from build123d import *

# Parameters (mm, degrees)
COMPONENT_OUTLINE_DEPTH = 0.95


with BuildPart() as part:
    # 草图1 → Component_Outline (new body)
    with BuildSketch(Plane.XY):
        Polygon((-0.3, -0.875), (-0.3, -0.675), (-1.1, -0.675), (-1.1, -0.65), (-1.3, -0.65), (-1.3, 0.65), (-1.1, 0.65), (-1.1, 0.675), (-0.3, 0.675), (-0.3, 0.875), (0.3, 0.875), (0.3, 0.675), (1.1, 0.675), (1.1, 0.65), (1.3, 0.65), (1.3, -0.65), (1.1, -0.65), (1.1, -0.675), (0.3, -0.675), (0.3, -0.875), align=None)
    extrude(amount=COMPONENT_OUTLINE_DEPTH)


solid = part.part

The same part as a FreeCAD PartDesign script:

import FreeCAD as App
import Part
import Sketcher

doc = App.newDocument("Part")
body = doc.addObject("PartDesign::Body", "Body")

sketch1 = body.newObject("Sketcher::SketchObject", "Sketch")
sketch1.AttachmentSupport = (doc.getObject("XY_Plane"), [""])
sketch1.MapMode = "FlatFace"
sketch1.addGeometry(Part.LineSegment(App.Vector(-0.3, -0.675, 0), App.Vector(-0.3, -0.875, 0)), False)
sketch1.addGeometry(Part.LineSegment(App.Vector(-0.3, -0.875, 0), App.Vector(0.3, -0.875, 0)), False)
sketch1.addGeometry(Part.LineSegment(App.Vector(0.3, -0.875, 0), App.Vector(0.3, -0.675, 0)), False)
sketch1.addGeometry(Part.LineSegment(App.Vector(0.3, -0.675, 0), App.Vector(1.1, -0.675, 0)), False)
sketch1.addGeometry(Part.LineSegment(App.Vector(1.1, -0.675, 0), App.Vector(1.1, -0.65, 0)), False)
sketch1.addGeometry(Part.LineSegment(App.Vector(1.1, -0.65, 0), App.Vector(1.3, -0.65, 0)), False)
sketch1.addGeometry(Part.LineSegment(App.Vector(1.3, -0.65, 0), App.Vector(1.3, 0.65, 0)), False)
sketch1.addGeometry(Part.LineSegment(App.Vector(1.3, 0.65, 0), App.Vector(1.1, 0.65, 0)), False)
sketch1.addGeometry(Part.LineSegment(App.Vector(1.1, 0.65, 0), App.Vector(1.1, 0.675, 0)), False)
sketch1.addGeometry(Part.LineSegment(App.Vector(1.1, 0.675, 0), App.Vector(0.3, 0.675, 0)), False)
sketch1.addGeometry(Part.LineSegment(App.Vector(0.3, 0.675, 0), App.Vector(0.3, 0.875, 0)), False)
sketch1.addGeometry(Part.LineSegment(App.Vector(0.3, 0.875, 0), App.Vector(-0.3, 0.875, 0)), False)
sketch1.addGeometry(Part.LineSegment(App.Vector(-0.3, 0.875, 0), App.Vector(-0.3, 0.675, 0)), False)
sketch1.addGeometry(Part.LineSegment(App.Vector(-0.3, 0.675, 0), App.Vector(-1.1, 0.675, 0)), False)
sketch1.addGeometry(Part.LineSegment(App.Vector(-1.1, 0.675, 0), App.Vector(-1.1, 0.65, 0)), False)
sketch1.addGeometry(Part.LineSegment(App.Vector(-1.1, 0.65, 0), App.Vector(-1.3, 0.65, 0)), False)
sketch1.addGeometry(Part.LineSegment(App.Vector(-1.3, 0.65, 0), App.Vector(-1.3, -0.65, 0)), False)
sketch1.addGeometry(Part.LineSegment(App.Vector(-1.3, -0.65, 0), App.Vector(-1.1, -0.65, 0)), False)
sketch1.addGeometry(Part.LineSegment(App.Vector(-1.1, -0.65, 0), App.Vector(-1.1, -0.675, 0)), False)
sketch1.addGeometry(Part.LineSegment(App.Vector(-1.1, -0.675, 0), App.Vector(-0.3, -0.675, 0)), False)
sketch1.addConstraint(Sketcher.Constraint("Coincident", 0, 2, 1, 1))
sketch1.addConstraint(Sketcher.Constraint("Coincident", 1, 2, 2, 1))
sketch1.addConstraint(Sketcher.Constraint("Coincident", 2, 2, 3, 1))
sketch1.addConstraint(Sketcher.Constraint("Coincident", 3, 2, 4, 1))
sketch1.addConstraint(Sketcher.Constraint("Coincident", 4, 2, 5, 1))
sketch1.addConstraint(Sketcher.Constraint("Coincident", 5, 2, 6, 1))
sketch1.addConstraint(Sketcher.Constraint("Coincident", 6, 2, 7, 1))
sketch1.addConstraint(Sketcher.Constraint("Coincident", 7, 2, 8, 1))
sketch1.addConstraint(Sketcher.Constraint("Coincident", 8, 2, 9, 1))
sketch1.addConstraint(Sketcher.Constraint("Coincident", 9, 2, 10, 1))
sketch1.addConstraint(Sketcher.Constraint("Coincident", 10, 2, 11, 1))
sketch1.addConstraint(Sketcher.Constraint("Coincident", 11, 2, 12, 1))
sketch1.addConstraint(Sketcher.Constraint("Coincident", 12, 2, 13, 1))
sketch1.addConstraint(Sketcher.Constraint("Coincident", 13, 2, 14, 1))
sketch1.addConstraint(Sketcher.Constraint("Coincident", 14, 2, 15, 1))
sketch1.addConstraint(Sketcher.Constraint("Coincident", 15, 2, 16, 1))
sketch1.addConstraint(Sketcher.Constraint("Coincident", 16, 2, 17, 1))
sketch1.addConstraint(Sketcher.Constraint("Coincident", 17, 2, 18, 1))
sketch1.addConstraint(Sketcher.Constraint("Coincident", 18, 2, 19, 1))
sketch1.addConstraint(Sketcher.Constraint("Coincident", 19, 2, 0, 1))
sketch1.addConstraint(Sketcher.Constraint("Vertical", 0))
sketch1.addConstraint(Sketcher.Constraint("Horizontal", 1))
sketch1.addConstraint(Sketcher.Constraint("Vertical", 2))
sketch1.addConstraint(Sketcher.Constraint("Horizontal", 3))
sketch1.addConstraint(Sketcher.Constraint("Vertical", 4))
sketch1.addConstraint(Sketcher.Constraint("Horizontal", 5))
sketch1.addConstraint(Sketcher.Constraint("Vertical", 6))
sketch1.addConstraint(Sketcher.Constraint("Horizontal", 7))
sketch1.addConstraint(Sketcher.Constraint("Vertical", 8))
sketch1.addConstraint(Sketcher.Constraint("Horizontal", 9))
sketch1.addConstraint(Sketcher.Constraint("Vertical", 10))
sketch1.addConstraint(Sketcher.Constraint("Horizontal", 11))
sketch1.addConstraint(Sketcher.Constraint("Vertical", 12))
sketch1.addConstraint(Sketcher.Constraint("Horizontal", 13))
sketch1.addConstraint(Sketcher.Constraint("Vertical", 14))
sketch1.addConstraint(Sketcher.Constraint("Horizontal", 15))
sketch1.addConstraint(Sketcher.Constraint("Vertical", 16))
sketch1.addConstraint(Sketcher.Constraint("Horizontal", 17))
sketch1.addConstraint(Sketcher.Constraint("Vertical", 18))
sketch1.addConstraint(Sketcher.Constraint("Horizontal", 19))
sketch1.addConstraint(Sketcher.Constraint("Symmetric", 0, 2, 10, 2, -1, 1))
sketch1.addConstraint(Sketcher.Constraint("Symmetric", 2, 2, 12, 2, -1, 1))
sketch1.addConstraint(Sketcher.Constraint("Symmetric", 4, 2, 14, 2, -1, 1))
sketch1.addConstraint(Sketcher.Constraint("Symmetric", 6, 2, 16, 2, -1, 1))
sketch1.addConstraint(Sketcher.Constraint("Symmetric", 8, 2, 18, 2, -1, 1))
sketch1.addConstraint(Sketcher.Constraint("Symmetric", 9, 2, 12, 2, -2))
sketch1.addConstraint(Sketcher.Constraint("Symmetric", 7, 2, 14, 2, -2))
sketch1.addConstraint(Sketcher.Constraint("Equal", 17, 0))
sketch1.addConstraint(Sketcher.Constraint("DistanceX", 1, 1, 1, 2, 0.6))
sketch1.addConstraint(Sketcher.Constraint("DistanceX", 3, 1, 3, 2, 0.8))
sketch1.addConstraint(Sketcher.Constraint("DistanceX", 5, 1, 5, 2, 0.2))
sketch1.addConstraint(Sketcher.Constraint("DistanceY", 6, 1, 6, 2, 1.3))
sketch1.addConstraint(Sketcher.Constraint("DistanceY", 4, 1, 4, 2, 0.025))
pad1 = body.newObject("PartDesign::Pad", "Pad")
pad1.Profile = sketch1
pad1.Length = 0.95

doc.recompute()
